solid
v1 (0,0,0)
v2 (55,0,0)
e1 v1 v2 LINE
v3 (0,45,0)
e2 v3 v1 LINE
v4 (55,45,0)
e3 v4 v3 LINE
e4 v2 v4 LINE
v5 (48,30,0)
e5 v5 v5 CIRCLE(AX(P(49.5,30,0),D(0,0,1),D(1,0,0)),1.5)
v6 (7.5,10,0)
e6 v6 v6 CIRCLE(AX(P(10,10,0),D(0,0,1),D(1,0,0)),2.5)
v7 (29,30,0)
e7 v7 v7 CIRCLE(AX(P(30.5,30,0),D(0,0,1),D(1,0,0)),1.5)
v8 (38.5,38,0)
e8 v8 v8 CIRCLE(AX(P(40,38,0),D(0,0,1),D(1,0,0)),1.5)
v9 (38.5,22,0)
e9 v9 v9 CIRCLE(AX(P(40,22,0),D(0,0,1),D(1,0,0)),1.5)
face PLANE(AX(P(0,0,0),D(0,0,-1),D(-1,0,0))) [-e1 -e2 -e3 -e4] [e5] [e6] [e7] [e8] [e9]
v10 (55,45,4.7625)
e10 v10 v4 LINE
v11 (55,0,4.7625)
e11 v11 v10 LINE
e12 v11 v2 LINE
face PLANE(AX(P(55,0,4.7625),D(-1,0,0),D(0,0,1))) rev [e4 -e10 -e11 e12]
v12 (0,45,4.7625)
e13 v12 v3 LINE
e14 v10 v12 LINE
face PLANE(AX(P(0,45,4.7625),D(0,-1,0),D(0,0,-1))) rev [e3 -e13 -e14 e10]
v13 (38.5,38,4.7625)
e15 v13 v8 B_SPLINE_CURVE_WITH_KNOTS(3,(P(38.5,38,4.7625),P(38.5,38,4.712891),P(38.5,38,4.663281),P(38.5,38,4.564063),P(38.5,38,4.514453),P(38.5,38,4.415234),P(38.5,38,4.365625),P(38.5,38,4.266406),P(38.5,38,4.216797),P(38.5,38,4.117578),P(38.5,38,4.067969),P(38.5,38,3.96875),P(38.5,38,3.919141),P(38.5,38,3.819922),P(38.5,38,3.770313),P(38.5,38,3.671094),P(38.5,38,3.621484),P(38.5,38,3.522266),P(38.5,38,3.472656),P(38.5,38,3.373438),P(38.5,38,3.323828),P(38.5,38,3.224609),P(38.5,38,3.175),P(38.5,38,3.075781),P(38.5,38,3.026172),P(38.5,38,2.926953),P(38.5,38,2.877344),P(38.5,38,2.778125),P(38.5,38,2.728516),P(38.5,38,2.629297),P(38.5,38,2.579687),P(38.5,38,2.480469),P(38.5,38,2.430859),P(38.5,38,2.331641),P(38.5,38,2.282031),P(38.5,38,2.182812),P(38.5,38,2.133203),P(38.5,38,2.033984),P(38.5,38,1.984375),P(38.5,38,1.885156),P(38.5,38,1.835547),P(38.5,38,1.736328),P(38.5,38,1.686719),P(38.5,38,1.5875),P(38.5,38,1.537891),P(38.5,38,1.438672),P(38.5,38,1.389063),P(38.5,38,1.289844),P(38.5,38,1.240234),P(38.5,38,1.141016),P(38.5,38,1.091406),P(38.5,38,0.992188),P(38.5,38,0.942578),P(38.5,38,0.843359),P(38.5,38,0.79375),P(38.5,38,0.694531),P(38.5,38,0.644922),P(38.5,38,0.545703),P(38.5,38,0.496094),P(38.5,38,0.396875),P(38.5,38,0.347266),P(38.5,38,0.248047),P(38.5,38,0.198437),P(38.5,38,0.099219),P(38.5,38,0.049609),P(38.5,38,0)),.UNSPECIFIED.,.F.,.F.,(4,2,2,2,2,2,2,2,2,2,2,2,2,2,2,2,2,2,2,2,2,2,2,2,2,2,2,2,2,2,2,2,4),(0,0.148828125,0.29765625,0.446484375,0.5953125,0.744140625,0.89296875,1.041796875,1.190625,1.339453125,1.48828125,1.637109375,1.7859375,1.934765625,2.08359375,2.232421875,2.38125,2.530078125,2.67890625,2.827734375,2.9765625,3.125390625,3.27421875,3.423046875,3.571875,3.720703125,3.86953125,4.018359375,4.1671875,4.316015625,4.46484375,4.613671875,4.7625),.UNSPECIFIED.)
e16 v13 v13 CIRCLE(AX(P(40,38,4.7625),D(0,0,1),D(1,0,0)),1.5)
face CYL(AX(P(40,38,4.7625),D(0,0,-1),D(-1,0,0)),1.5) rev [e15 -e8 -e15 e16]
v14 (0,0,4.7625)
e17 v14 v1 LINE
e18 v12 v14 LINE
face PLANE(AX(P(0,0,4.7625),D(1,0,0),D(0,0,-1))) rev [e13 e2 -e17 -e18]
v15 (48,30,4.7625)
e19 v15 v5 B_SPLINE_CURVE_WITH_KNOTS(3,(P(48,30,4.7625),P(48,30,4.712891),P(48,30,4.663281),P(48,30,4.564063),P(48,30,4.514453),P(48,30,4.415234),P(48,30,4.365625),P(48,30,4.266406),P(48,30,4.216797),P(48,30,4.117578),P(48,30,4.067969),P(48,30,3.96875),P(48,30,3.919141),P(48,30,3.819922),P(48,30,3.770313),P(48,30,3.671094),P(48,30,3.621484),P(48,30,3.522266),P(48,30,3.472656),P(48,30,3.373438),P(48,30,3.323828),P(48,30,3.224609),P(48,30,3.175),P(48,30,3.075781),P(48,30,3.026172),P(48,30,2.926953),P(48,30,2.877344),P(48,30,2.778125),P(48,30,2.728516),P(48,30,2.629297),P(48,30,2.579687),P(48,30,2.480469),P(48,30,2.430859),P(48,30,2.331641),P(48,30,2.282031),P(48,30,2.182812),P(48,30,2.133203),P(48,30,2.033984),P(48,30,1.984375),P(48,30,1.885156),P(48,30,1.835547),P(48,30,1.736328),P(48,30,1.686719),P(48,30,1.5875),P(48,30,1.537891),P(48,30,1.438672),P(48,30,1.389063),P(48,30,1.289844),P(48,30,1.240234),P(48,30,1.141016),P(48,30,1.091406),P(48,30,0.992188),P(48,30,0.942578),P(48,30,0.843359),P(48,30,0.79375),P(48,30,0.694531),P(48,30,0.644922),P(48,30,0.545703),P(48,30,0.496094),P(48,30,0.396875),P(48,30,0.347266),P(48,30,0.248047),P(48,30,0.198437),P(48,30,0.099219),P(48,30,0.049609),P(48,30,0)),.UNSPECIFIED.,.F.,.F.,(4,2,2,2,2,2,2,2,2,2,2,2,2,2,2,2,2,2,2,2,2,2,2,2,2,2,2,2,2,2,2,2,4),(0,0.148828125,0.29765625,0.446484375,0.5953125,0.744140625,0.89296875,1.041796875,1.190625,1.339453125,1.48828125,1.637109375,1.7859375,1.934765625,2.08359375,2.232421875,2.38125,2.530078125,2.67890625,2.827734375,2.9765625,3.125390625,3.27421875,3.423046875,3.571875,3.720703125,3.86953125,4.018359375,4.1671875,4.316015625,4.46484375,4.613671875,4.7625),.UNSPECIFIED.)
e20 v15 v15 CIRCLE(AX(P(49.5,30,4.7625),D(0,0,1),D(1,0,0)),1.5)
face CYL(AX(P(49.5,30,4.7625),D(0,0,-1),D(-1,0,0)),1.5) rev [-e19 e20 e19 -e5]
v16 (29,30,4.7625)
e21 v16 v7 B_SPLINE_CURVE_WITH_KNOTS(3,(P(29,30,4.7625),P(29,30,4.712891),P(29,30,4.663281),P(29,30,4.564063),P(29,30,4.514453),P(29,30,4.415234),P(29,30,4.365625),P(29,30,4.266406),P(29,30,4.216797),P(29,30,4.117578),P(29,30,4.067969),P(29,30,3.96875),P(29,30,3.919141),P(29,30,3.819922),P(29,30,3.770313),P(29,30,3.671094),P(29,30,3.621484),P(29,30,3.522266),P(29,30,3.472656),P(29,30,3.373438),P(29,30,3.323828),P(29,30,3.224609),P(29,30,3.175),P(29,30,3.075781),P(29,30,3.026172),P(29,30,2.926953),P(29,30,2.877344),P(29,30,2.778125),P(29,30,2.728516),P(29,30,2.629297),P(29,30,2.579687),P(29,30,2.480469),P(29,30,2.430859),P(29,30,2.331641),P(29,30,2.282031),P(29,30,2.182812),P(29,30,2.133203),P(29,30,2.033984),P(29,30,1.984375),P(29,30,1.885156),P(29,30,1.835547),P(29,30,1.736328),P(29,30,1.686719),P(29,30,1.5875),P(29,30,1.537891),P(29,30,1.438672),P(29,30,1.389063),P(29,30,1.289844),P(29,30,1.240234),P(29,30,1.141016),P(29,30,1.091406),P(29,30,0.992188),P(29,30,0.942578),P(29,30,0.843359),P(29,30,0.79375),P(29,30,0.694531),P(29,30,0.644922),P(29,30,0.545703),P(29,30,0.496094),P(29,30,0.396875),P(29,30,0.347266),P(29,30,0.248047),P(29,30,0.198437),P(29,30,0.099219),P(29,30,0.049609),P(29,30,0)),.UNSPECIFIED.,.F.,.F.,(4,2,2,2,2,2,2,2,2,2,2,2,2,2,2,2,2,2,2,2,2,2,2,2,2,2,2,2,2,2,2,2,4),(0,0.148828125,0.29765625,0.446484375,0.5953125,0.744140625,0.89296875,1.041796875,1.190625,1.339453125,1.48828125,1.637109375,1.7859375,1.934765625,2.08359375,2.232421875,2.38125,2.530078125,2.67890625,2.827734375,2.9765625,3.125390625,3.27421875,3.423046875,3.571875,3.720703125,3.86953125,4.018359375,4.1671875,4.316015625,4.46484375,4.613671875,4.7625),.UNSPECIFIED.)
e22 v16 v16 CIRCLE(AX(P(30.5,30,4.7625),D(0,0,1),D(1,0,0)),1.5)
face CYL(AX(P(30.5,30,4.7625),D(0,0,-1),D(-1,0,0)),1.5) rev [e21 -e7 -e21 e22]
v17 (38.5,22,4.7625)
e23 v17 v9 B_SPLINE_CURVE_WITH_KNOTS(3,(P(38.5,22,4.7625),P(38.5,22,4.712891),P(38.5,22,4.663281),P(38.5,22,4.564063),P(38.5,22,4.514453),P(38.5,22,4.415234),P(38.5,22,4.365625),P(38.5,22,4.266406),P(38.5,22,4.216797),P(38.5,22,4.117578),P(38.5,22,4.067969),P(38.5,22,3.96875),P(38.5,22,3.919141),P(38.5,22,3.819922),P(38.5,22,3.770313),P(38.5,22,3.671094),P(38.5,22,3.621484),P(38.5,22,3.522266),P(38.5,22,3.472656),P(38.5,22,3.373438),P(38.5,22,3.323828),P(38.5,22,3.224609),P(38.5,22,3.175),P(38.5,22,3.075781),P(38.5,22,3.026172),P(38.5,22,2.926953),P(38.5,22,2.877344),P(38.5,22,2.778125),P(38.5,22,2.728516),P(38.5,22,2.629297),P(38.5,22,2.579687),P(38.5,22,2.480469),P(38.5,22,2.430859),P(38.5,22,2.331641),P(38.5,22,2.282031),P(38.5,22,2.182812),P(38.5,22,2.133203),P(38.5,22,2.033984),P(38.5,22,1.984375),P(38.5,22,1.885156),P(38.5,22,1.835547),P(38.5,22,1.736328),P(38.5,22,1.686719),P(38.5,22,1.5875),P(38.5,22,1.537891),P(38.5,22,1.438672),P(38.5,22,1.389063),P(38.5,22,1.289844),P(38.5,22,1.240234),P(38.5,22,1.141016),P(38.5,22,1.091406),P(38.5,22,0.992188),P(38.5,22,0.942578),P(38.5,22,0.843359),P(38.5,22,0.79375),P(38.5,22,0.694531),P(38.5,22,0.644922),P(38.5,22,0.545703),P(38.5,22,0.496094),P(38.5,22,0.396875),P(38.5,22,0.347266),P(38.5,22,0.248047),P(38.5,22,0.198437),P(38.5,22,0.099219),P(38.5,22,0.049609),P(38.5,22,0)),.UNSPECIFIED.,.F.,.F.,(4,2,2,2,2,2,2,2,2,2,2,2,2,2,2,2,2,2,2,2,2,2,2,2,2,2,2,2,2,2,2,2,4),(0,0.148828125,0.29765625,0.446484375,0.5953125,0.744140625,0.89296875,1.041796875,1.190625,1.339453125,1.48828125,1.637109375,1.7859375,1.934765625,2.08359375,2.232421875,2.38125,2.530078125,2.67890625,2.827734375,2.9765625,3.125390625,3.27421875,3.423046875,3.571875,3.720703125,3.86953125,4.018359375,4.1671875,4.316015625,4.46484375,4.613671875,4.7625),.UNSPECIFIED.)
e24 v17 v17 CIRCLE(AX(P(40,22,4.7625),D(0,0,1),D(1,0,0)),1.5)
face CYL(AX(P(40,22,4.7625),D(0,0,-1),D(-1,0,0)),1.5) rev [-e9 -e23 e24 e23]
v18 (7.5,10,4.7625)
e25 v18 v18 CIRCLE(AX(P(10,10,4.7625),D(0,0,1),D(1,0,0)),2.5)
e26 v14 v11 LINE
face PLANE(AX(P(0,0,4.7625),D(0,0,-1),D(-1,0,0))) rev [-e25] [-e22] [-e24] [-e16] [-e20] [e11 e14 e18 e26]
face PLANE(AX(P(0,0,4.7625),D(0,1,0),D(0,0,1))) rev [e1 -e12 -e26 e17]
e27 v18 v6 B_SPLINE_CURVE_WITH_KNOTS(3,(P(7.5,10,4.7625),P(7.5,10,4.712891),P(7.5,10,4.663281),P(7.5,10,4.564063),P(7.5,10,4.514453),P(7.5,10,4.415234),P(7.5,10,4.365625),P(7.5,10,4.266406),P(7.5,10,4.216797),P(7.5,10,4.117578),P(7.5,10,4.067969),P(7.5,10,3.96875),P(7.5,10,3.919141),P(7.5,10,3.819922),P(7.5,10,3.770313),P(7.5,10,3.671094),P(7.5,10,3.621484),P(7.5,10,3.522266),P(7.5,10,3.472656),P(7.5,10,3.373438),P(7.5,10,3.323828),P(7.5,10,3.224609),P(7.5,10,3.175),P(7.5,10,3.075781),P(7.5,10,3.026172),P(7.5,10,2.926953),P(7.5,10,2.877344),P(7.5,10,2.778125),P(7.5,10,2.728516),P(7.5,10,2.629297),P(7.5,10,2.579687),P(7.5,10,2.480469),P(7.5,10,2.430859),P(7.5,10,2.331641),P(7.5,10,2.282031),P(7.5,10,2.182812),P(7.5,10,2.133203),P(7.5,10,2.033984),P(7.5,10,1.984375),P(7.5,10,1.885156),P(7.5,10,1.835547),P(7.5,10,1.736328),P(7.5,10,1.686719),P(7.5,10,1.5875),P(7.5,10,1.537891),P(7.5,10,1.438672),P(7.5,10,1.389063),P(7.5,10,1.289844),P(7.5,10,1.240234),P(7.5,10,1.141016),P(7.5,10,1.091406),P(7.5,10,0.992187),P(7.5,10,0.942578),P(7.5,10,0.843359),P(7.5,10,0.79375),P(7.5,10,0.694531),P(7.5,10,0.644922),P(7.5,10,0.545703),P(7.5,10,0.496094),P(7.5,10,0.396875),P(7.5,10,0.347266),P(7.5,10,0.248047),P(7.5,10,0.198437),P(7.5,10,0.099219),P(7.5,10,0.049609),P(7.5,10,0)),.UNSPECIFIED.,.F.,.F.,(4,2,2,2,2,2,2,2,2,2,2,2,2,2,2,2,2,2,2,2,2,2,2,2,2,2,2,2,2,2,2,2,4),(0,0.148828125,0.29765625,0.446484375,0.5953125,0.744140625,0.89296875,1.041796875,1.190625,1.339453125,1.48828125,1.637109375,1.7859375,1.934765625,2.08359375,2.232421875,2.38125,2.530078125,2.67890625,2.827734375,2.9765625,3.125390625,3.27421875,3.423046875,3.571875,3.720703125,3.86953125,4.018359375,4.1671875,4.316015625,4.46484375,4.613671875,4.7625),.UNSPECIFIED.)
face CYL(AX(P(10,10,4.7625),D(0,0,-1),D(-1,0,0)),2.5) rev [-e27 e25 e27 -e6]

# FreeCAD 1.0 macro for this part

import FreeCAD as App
import Part
import Sketcher

V = App.Vector


def add_polygon(sketch, points):
    """Adds a closed chain of lines whose ends are joined by coincident constraints."""
    first, n = sketch.GeometryCount, len(points)
    for a, b in zip(points, points[1:] + points[:1]):
        sketch.addGeometry(Part.LineSegment(App.Vector(*a, 0), App.Vector(*b, 0)), False)
    for i in range(n):
        sketch.addConstraint(Sketcher.Constraint("Coincident", first + i, 2, first + (i + 1) % n, 1))

doc = App.newDocument("Part")
body = doc.addObject("PartDesign::Body", "Body")

# Sketch on XY plane
sketch1 = body.newObject("Sketcher::SketchObject", "Sketch")
sketch1.AttachmentSupport = (doc.getObject("XY_Plane"), [""])
sketch1.MapMode = "FlatFace"
add_polygon(sketch1, [(0, 45), (0, 0), (55, 0), (55, 45)])  # lines 0-3
sketch1.addGeometry(Part.Circle(V(10, 10, 0), V(0, 0, 1), 2.5), False)  # 4
sketch1.addGeometry(Part.Circle(V(40, 22, 0), V(0, 0, 1), 1.5), False)  # 5
sketch1.addGeometry(Part.Circle(V(30.5, 30, 0), V(0, 0, 1), 1.5), False)  # 6
sketch1.addGeometry(Part.Circle(V(49.5, 30, 0), V(0, 0, 1), 1.5), False)  # 7
sketch1.addGeometry(Part.Circle(V(40, 38, 0), V(0, 0, 1), 1.5), False)  # 8
sketch1.addConstraint(Sketcher.Constraint("Vertical", 0))
sketch1.addConstraint(Sketcher.Constraint("Horizontal", 1))
sketch1.addConstraint(Sketcher.Constraint("Vertical", 2))
sketch1.addConstraint(Sketcher.Constraint("Horizontal", 3))
sketch1.addConstraint(Sketcher.Constraint("Coincident", 0, 2, -1, 1))
sketch1.addConstraint(Sketcher.Constraint("Equal", 5, 6))
sketch1.addConstraint(Sketcher.Constraint("Equal", 6, 7))
sketch1.addConstraint(Sketcher.Constraint("Equal", 7, 8))
sketch1.addConstraint(Sketcher.Constraint("Horizontal", 6, 3, 7, 3))
sketch1.addConstraint(Sketcher.Constraint("Vertical", 5, 3, 8, 3))
sketch1.addConstraint(Sketcher.Constraint("Diameter", 4, 5.0))
sketch1.addConstraint(Sketcher.Constraint("Diameter", 5, 3.0))
sketch1.addConstraint(Sketcher.Constraint("DistanceX", 1, 1, 1, 2, 55.0))
sketch1.addConstraint(Sketcher.Constraint("DistanceY", 0, 2, 0, 1, 45.0))
sketch1.addConstraint(Sketcher.Constraint("DistanceX", -1, 1, 4, 3, 10.0))
sketch1.addConstraint(Sketcher.Constraint("DistanceY", -1, 1, 4, 3, 10.0))
sketch1.addConstraint(Sketcher.Constraint("DistanceX", -1, 1, 5, 3, 40.0))
sketch1.addConstraint(Sketcher.Constraint("DistanceY", -1, 1, 5, 3, 22.0))
sketch1.addConstraint(Sketcher.Constraint("DistanceY", -1, 1, 6, 3, 30.0))
sketch1.addConstraint(Sketcher.Constraint("DistanceY", -1, 1, 8, 3, 38.0))
sketch1.addConstraint(Sketcher.Constraint("DistanceX", 6, 3, 7, 3, 19.0))
sketch1.addConstraint(Sketcher.Constraint("DistanceX", -1, 1, 6, 3, 30.5))
pad1 = body.newObject("PartDesign::Pad", "Pad")
pad1.Profile = sketch1
pad1.Length = 4.7625

doc.recompute()
